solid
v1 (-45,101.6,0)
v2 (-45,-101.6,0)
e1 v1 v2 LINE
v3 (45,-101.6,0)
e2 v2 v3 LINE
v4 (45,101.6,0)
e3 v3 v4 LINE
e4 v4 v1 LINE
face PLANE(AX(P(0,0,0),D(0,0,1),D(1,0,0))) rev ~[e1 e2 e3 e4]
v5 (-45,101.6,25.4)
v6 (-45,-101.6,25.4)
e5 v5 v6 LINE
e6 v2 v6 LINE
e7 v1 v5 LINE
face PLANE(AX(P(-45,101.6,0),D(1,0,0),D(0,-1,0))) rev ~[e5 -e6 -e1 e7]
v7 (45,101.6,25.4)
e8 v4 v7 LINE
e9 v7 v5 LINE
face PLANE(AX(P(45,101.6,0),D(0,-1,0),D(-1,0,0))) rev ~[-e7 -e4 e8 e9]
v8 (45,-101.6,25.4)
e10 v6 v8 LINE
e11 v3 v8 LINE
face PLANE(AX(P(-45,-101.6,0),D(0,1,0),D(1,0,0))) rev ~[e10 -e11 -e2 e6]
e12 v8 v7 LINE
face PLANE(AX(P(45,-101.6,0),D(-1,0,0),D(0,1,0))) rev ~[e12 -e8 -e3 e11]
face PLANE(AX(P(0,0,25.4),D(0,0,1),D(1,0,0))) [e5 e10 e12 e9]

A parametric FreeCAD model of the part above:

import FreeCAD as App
import Part
import Sketcher
from FreeCAD import Vector
Q = App.Units.Quantity


def add_polygon(sketch, points):
    """Adds a closed chain of lines whose ends are joined by coincident constraints."""
    first, n = sketch.GeometryCount, len(points)
    for a, b in zip(points, points[1:] + points[:1]):
        sketch.addGeometry(Part.LineSegment(App.Vector(*a, 0), App.Vector(*b, 0)), False)
    for i in range(n):
        sketch.addConstraint(Sketcher.Constraint("Coincident", first + i, 2, first + (i + 1) % n, 1))

doc = App.newDocument("Part")
params = doc.addObject("Spreadsheet::Sheet", "Params")
for row, (alias, value) in enumerate([
    ("sketch1_height", "8 in"),
    ("pad1_length", "1 in"),
], start=1):
    params.set(f"A{row}", alias)
    params.set(f"B{row}", "=" + value)
    params.setAlias(f"B{row}", alias)

body = doc.addObject("PartDesign::Body", "Body")

# Sketch on XY plane
sketch1 = body.newObject("Sketcher::SketchObject", "Sketch")
sketch1.AttachmentSupport = (doc.getObject("XY_Plane"), [""])
sketch1.MapMode = "FlatFace"
add_polygon(sketch1, [(-45, -101.6), (45, -101.6), (45, 101.6), (-45, 101.6)])  # lines 0-3
sketch1.addConstraint(Sketcher.Constraint("Horizontal", 0))
sketch1.addConstraint(Sketcher.Constraint("Vertical", 1))
sketch1.addConstraint(Sketcher.Constraint("Horizontal", 2))
sketch1.addConstraint(Sketcher.Constraint("Vertical", 3))
sketch1.addConstraint(Sketcher.Constraint("Symmetric", 0, 2, 2, 2, -1, 1))
sketch1.addConstraint(Sketcher.Constraint("DistanceY", 1, 1, 1, 2, Q("8 in")))
sketch1.addConstraint(Sketcher.Constraint("DistanceX", 0, 1, 0, 2, Q("3.5433 in")))
sketch1.setExpression("Constraints[9]", "Params.sketch1_height")
pad1 = body.newObject("PartDesign::Pad", "Pad")
pad1.Profile = sketch1
pad1.setExpression("Length", "Params.pad1_length")

doc.recompute()
